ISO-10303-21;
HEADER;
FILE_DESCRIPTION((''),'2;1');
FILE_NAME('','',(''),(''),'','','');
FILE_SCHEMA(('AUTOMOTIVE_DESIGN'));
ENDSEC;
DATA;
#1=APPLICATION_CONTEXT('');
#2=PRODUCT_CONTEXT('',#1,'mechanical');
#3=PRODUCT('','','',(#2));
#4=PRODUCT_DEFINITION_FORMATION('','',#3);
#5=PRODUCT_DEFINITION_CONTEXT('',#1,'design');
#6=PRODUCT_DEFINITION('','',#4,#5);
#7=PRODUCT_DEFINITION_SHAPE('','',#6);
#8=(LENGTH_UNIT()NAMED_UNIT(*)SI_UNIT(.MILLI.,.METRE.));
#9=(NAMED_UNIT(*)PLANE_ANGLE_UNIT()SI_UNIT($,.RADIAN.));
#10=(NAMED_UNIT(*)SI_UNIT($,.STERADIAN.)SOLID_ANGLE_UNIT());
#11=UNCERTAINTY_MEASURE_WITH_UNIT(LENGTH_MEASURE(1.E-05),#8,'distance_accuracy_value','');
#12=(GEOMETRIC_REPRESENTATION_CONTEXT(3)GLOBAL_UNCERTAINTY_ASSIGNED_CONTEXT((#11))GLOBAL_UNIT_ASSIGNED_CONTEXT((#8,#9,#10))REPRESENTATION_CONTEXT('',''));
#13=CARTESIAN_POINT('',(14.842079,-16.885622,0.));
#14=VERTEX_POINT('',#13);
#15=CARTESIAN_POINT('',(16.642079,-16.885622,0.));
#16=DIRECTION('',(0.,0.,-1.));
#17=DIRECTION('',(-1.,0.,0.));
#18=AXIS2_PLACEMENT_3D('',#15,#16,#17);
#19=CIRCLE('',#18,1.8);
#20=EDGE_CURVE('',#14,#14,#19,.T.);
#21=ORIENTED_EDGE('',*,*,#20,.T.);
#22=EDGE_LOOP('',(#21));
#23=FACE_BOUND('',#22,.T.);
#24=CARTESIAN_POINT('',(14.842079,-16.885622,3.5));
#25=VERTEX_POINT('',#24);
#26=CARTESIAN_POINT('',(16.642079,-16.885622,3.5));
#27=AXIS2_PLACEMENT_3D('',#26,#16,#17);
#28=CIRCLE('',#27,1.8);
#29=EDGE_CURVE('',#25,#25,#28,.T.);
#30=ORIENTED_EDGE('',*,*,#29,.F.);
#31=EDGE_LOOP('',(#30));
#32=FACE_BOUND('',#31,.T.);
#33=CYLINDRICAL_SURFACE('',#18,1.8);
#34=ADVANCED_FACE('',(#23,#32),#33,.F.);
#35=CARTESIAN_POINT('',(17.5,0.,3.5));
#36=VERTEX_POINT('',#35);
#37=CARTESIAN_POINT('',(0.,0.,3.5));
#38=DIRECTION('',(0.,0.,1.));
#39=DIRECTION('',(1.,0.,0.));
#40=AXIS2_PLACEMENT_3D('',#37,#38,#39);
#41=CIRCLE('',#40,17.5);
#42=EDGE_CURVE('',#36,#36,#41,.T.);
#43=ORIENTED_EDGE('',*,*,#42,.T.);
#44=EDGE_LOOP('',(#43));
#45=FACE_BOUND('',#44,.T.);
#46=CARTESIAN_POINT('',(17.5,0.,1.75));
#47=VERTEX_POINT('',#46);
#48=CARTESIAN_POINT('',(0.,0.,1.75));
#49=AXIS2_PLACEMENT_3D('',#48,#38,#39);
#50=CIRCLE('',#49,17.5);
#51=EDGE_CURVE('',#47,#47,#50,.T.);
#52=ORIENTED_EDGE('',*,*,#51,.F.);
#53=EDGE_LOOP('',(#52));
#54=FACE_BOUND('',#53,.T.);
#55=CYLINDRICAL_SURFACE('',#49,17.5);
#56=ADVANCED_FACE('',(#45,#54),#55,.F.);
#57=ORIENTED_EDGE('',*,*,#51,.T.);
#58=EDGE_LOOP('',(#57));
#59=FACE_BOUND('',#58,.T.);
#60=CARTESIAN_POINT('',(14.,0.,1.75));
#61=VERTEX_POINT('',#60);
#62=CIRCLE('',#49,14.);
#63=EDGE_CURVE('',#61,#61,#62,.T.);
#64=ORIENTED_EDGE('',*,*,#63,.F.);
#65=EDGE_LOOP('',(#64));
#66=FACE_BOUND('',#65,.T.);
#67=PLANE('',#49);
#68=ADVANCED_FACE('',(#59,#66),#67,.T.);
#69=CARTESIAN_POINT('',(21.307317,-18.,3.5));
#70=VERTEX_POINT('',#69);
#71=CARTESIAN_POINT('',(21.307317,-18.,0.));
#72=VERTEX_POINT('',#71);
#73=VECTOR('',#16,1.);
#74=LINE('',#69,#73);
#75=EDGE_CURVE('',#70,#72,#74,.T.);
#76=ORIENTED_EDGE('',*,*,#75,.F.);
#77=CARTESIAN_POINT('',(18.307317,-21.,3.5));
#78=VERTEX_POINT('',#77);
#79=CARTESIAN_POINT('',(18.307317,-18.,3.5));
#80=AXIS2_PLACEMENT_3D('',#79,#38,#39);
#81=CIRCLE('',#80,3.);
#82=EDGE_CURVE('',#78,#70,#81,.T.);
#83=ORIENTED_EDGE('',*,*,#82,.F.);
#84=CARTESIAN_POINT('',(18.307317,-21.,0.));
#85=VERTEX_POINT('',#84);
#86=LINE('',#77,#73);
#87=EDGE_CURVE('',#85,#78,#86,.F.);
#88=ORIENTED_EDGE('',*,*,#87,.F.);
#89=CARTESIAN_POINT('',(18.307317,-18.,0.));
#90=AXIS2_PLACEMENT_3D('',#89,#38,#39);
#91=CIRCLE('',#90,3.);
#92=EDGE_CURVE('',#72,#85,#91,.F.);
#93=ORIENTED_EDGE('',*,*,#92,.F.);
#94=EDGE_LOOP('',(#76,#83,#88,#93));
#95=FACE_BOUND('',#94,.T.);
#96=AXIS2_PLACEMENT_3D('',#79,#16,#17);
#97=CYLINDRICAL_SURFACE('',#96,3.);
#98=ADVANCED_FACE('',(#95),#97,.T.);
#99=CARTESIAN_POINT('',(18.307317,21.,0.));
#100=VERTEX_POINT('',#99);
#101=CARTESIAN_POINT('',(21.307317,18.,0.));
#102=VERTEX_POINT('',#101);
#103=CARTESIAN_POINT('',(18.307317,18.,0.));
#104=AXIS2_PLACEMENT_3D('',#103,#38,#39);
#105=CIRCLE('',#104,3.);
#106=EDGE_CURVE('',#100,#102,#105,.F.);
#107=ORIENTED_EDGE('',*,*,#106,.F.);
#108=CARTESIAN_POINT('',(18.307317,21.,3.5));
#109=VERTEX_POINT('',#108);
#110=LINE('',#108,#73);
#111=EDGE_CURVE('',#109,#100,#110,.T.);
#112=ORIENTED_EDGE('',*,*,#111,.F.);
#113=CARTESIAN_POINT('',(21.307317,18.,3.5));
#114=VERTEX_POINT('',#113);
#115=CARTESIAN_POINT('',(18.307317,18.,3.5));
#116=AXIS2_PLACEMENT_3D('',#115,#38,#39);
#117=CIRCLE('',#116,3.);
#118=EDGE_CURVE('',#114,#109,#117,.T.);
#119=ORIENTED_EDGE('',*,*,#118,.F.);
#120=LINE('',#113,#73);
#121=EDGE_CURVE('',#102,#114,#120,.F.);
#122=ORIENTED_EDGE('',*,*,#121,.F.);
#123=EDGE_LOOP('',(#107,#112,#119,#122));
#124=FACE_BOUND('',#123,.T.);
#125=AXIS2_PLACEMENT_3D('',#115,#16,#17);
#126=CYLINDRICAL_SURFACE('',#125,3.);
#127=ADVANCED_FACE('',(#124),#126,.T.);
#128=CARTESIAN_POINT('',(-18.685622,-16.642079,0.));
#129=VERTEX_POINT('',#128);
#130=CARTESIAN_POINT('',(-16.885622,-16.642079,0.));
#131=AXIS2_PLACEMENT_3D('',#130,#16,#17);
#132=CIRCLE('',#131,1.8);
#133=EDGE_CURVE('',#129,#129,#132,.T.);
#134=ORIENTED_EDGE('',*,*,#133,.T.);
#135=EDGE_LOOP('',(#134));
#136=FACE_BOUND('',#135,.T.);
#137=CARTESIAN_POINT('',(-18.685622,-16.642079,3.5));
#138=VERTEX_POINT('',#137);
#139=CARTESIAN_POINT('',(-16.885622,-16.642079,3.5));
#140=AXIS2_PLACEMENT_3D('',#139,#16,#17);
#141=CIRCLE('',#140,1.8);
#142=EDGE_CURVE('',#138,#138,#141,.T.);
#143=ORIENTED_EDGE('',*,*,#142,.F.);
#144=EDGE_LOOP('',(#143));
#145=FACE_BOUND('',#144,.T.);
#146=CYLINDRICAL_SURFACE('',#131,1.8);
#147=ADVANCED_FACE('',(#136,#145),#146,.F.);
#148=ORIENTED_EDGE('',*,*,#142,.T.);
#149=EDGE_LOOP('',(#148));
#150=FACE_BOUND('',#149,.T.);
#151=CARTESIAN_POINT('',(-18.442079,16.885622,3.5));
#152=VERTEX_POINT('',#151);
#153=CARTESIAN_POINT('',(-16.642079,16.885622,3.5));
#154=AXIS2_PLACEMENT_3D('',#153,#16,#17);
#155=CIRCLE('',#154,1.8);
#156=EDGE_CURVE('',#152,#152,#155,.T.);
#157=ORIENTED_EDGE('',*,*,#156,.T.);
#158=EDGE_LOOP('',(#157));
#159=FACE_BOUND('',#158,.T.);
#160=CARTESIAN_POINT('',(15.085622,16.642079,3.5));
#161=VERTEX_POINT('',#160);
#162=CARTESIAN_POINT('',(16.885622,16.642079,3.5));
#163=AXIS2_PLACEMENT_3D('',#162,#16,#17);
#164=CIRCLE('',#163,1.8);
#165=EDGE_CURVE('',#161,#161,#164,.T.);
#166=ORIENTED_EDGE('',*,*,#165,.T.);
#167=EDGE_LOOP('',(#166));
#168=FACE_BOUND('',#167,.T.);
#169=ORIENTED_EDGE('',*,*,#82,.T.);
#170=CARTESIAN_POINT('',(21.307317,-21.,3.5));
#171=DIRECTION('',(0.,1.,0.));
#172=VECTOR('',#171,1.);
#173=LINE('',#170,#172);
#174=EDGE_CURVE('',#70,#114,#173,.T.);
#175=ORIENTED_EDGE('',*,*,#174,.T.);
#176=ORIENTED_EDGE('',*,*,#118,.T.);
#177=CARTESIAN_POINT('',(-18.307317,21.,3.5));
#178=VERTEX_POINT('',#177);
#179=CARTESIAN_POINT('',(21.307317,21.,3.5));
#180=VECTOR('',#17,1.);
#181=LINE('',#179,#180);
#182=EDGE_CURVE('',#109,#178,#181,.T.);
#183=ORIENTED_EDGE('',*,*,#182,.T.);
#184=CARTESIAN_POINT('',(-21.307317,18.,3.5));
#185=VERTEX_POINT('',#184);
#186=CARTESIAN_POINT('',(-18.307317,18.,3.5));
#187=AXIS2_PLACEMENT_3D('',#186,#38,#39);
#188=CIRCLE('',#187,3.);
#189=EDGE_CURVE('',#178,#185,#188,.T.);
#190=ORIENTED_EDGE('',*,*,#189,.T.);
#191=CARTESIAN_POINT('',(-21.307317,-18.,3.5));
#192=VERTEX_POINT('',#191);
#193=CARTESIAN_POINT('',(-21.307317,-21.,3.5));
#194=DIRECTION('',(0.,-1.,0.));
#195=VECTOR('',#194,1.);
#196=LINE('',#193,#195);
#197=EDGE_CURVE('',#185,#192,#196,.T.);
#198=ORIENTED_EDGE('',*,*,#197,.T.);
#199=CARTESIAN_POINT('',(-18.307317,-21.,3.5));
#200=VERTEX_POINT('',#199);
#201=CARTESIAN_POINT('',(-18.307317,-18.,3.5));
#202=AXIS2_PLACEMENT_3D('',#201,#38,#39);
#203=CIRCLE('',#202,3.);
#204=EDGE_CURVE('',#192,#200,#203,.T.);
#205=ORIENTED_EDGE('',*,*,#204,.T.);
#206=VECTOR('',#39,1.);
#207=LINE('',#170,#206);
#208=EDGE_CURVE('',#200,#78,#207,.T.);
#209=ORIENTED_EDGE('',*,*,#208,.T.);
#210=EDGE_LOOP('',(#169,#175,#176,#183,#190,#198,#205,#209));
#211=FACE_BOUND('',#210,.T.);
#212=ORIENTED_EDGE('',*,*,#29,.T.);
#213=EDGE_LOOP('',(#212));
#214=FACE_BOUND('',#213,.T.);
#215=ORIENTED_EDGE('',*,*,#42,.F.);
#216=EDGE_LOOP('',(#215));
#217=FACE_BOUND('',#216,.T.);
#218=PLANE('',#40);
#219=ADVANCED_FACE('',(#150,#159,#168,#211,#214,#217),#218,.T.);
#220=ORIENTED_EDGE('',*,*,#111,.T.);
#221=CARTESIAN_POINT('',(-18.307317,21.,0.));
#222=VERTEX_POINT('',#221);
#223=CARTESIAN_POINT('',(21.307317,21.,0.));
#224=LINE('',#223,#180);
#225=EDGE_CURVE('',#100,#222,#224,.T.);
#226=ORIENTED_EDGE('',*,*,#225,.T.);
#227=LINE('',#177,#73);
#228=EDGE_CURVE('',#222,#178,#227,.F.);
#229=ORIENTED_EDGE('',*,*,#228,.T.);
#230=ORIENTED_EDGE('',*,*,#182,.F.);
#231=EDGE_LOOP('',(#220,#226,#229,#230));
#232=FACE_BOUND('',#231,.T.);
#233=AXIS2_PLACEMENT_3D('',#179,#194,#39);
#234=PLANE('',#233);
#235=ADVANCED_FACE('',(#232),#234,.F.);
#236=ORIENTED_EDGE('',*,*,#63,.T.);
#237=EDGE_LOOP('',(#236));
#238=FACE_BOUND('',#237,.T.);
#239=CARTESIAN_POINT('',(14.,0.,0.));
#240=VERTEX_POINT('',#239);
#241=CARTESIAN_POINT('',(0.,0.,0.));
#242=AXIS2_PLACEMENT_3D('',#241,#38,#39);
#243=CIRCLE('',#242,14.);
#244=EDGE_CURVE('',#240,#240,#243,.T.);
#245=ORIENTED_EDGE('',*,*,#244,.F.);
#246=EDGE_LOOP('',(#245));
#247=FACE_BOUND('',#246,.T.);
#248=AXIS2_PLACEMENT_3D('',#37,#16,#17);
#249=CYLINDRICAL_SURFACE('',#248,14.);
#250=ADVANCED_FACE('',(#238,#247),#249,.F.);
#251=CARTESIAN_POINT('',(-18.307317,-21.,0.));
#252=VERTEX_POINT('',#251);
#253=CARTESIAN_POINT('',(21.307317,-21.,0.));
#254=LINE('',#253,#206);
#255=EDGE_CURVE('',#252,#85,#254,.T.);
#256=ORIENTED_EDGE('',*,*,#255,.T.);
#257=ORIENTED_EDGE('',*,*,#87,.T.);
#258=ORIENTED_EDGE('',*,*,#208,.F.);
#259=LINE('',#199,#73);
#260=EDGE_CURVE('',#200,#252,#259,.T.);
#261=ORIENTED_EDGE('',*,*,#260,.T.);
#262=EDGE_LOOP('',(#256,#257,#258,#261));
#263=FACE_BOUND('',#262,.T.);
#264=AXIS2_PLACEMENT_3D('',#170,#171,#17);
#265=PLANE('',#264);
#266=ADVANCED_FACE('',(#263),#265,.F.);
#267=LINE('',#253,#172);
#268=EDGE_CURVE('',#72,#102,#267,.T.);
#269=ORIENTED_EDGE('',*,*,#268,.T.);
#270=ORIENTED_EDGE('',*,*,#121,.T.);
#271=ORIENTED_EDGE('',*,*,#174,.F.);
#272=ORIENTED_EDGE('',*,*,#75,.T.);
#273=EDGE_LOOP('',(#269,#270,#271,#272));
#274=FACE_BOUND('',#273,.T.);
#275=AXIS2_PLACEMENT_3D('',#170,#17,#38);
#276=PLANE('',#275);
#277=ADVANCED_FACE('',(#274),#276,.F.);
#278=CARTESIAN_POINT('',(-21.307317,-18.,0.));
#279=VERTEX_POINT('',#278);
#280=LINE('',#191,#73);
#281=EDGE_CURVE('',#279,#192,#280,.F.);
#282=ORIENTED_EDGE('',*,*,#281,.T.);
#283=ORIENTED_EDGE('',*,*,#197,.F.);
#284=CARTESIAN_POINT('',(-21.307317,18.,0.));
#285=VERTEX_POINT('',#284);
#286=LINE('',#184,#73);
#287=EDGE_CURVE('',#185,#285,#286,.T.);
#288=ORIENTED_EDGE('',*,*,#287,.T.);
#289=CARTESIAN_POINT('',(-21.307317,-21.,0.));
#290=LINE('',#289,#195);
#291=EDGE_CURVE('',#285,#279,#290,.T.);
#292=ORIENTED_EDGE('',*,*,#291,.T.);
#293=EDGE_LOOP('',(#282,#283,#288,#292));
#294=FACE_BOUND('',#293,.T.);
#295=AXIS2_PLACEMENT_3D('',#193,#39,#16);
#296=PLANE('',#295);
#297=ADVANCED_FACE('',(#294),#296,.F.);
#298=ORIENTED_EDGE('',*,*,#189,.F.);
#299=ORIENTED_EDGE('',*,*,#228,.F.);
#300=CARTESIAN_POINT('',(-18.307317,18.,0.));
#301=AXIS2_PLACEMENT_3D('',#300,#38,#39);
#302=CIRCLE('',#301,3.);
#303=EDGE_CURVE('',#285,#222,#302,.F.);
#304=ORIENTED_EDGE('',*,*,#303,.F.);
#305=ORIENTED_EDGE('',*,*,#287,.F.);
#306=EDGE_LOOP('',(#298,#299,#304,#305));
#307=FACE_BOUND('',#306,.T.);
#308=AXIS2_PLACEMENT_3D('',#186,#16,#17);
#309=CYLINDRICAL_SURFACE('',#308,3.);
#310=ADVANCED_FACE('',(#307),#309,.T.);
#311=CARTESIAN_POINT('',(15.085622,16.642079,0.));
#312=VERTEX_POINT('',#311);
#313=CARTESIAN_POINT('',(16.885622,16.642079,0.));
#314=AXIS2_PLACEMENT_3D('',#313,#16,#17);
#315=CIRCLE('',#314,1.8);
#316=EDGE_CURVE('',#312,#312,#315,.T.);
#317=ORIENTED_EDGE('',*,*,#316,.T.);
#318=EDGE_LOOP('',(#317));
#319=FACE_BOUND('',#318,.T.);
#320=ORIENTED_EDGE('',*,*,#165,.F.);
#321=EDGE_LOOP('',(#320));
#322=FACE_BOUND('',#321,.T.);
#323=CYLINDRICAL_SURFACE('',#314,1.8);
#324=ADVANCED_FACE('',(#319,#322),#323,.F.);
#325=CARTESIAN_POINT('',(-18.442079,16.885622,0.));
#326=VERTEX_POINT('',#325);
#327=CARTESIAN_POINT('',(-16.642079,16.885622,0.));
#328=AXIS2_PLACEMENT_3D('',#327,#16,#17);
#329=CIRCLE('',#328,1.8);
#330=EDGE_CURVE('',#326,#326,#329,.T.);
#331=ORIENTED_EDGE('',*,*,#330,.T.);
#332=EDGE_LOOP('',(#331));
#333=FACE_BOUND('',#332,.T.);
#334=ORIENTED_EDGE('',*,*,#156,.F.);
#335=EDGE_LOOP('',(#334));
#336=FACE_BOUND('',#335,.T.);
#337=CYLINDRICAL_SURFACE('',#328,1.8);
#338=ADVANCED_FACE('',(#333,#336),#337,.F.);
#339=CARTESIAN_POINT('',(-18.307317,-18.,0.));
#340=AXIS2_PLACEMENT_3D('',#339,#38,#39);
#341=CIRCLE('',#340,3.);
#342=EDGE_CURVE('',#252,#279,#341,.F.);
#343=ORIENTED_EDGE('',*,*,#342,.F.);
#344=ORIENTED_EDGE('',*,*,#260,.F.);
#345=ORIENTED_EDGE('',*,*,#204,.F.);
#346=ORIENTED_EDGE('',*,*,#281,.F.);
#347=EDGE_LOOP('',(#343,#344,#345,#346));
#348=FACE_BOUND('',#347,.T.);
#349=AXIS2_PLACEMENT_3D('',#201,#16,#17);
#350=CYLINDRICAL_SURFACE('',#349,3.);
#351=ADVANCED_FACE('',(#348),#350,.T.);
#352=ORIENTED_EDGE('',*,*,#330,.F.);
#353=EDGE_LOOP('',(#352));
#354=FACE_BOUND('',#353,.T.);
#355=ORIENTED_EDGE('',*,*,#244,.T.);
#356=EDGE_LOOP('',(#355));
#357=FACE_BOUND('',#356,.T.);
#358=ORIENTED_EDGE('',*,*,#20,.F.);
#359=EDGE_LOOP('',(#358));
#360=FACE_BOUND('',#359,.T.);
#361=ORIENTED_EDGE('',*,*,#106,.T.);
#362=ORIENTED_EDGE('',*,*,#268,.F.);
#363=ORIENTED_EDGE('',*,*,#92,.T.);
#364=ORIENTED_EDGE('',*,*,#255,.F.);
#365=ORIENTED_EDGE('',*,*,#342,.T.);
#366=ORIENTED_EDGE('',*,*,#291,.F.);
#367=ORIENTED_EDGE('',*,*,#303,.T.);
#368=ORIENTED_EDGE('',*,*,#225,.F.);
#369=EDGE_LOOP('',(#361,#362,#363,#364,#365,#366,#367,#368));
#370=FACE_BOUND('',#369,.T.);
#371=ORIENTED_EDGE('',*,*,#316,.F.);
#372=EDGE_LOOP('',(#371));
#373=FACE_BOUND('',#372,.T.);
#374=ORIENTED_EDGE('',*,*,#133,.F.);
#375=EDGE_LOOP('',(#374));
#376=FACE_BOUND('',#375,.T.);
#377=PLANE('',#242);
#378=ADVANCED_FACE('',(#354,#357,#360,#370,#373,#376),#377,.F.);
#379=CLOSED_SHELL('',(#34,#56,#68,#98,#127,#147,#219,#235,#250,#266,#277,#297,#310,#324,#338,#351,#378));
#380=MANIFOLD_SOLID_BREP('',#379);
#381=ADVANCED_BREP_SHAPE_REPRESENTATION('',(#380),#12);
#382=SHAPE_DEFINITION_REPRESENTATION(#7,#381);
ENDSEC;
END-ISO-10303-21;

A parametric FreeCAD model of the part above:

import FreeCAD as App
import Part
import Sketcher
Q = App.Units.Quantity


def edges_at(feature, points):
    """Names of the edges that pass closest to the given points."""
    edges = feature.Shape.Edges
    near = lambda p: min(range(len(edges)), key=lambda i: edges[i].distToShape(Part.Vertex(*p))[0])
    return sorted({f"Edge{near(p) + 1}" for p in points})


def add_polygon(sketch, points):
    """Adds a closed chain of lines whose ends are joined by coincident constraints."""
    first, n = sketch.GeometryCount, len(points)
    for a, b in zip(points, points[1:] + points[:1]):
        sketch.addGeometry(Part.LineSegment(App.Vector(*a, 0), App.Vector(*b, 0)), False)
    for i in range(n):
        sketch.addConstraint(Sketcher.Constraint("Coincident", first + i, 2, first + (i + 1) % n, 1))

doc = App.newDocument("Part")
params = doc.addObject("Spreadsheet::Sheet", "Params")
for row, (alias, value) in enumerate([
    ("sketch1_diameter", "28 mm"),
    ("sketch1_height", "42 mm"),
    ("pad1_length", "3.5 mm"),
    ("sketch2_diameter", "35 mm"),
    ("pocket1_length", "1.75 mm"),
    ("sketch3_diameter", "3.6 mm"),
    ("hole_diameter", "3.6 mm"),
    ("fillet_radius", "3 mm"),
], start=1):
    params.set(f"A{row}", alias)
    params.set(f"B{row}", "=" + value)
    params.setAlias(f"B{row}", alias)

body = doc.addObject("PartDesign::Body", "Body")

# Sketch on XY plane
sketch1 = body.newObject("Sketcher::SketchObject", "Sketch")
sketch1.AttachmentSupport = (doc.getObject("XY_Plane"), [""])
sketch1.MapMode = "FlatFace"
add_polygon(sketch1, [(-21.307317, 21), (-21.307317, -21), (21.307317, -21), (21.307317, 21)])  # lines 0-3
sketch1.addGeometry(Part.Circle(App.Vector(0, 0, 0), App.Vector(0, 0, 1), 14), False)  # 4
sketch1.addConstraint(Sketcher.Constraint("Vertical", 0))
sketch1.addConstraint(Sketcher.Constraint("Horizontal", 1))
sketch1.addConstraint(Sketcher.Constraint("Vertical", 2))
sketch1.addConstraint(Sketcher.Constraint("Horizontal", 3))
sketch1.addConstraint(Sketcher.Constraint("Coincident", 4, 3, -1, 1))
sketch1.addConstraint(Sketcher.Constraint("Symmetric", 0, 2, 2, 2, -1, 1))
sketch1.addConstraint(Sketcher.Constraint("Diameter", 4, Q("28 mm")))
sketch1.addConstraint(Sketcher.Constraint("DistanceY", 0, 2, 0, 1, Q("42 mm")))
sketch1.addConstraint(Sketcher.Constraint("DistanceX", 1, 1, 1, 2, Q("42.614634 mm")))
sketch1.setExpression("Constraints[10]", "Params.sketch1_diameter")
sketch1.setExpression("Constraints[11]", "Params.sketch1_height")
pad1 = body.newObject("PartDesign::Pad", "Pad")
pad1.Profile = sketch1
pad1.setExpression("Length", "Params.pad1_length")

# Sketch on XY plane
sketch2 = body.newObject("Sketcher::SketchObject", "Sketch001")
sketch2.AttachmentSupport = (doc.getObject("XY_Plane"), [""])
sketch2.MapMode = "FlatFace"
sketch2.AttachmentOffset = App.Placement(App.Vector(0, 0, 3.5), App.Rotation())
sketch2.addGeometry(Part.Circle(App.Vector(0, 0, 0), App.Vector(0, 0, 1), 17.5), False)
sketch2.addConstraint(Sketcher.Constraint("Coincident", 0, 3, -1, 1))
sketch2.addConstraint(Sketcher.Constraint("Diameter", 0, Q("35 mm")))
sketch2.setExpression("Constraints[1]", "Params.sketch2_diameter")
pocket1 = body.newObject("PartDesign::Pocket", "Pocket")
pocket1.Profile = sketch2
pocket1.setExpression("Length", "Params.pocket1_length")

# Sketch on XY plane
sketch3 = body.newObject("Sketcher::SketchObject", "Sketch002")
sketch3.AttachmentSupport = (doc.getObject("XY_Plane"), [""])
sketch3.MapMode = "FlatFace"
sketch3.addGeometry(Part.Circle(App.Vector(16.642079, -16.885622, 0), App.Vector(0, 0, 1), 1.8), False)
sketch3.addGeometry(Part.Circle(App.Vector(16.885622, 16.642079, 0), App.Vector(0, 0, 1), 1.8), False)
sketch3.addGeometry(Part.Circle(App.Vector(-16.642079, 16.885622, 0), App.Vector(0, 0, 1), 1.8), False)
sketch3.addGeometry(Part.Circle(App.Vector(-16.885622, -16.642079, 0), App.Vector(0, 0, 1), 1.8), False)
sketch3.addConstraint(Sketcher.Constraint("Equal", 0, 1))
sketch3.addConstraint(Sketcher.Constraint("Equal", 1, 2))
sketch3.addConstraint(Sketcher.Constraint("Equal", 2, 3))
sketch3.addConstraint(Sketcher.Constraint("Symmetric", 0, 3, 2, 3, -1, 1))
sketch3.addConstraint(Sketcher.Constraint("Symmetric", 1, 3, 3, 3, -1, 1))
sketch3.addConstraint(Sketcher.Constraint("Diameter", 0, Q("3.6 mm")))
sketch3.addConstraint(Sketcher.Constraint("DistanceY", 0, 3, 1, 3, Q("33.527701 mm")))
sketch3.addConstraint(Sketcher.Constraint("DistanceX", 2, 3, 1, 3, Q("33.527701 mm")))
sketch3.addConstraint(Sketcher.Constraint("DistanceX", -1, 1, 0, 3, Q("16.642079 mm")))
sketch3.addConstraint(Sketcher.Constraint("DistanceY", 0, 3, -1, 1, Q("16.885622 mm")))
sketch3.setExpression("Constraints[5]", "Params.sketch3_diameter")
doc.recompute()
hole = body.newObject("PartDesign::Hole", "Hole")
hole.Profile = sketch3
hole.ThreadType = "None"
hole.setExpression("Diameter", "Params.hole_diameter")
hole.DepthType = "ThroughAll"
hole.Reversed = True
doc.recompute()

fillet = body.newObject("PartDesign::Fillet", "Fillet")
fillet.Base = (hole, edges_at(hole, [
    (-21.307, 21, 1.75),
    (21.307, 21, 1.75),
    (21.307, -21, 1.75),
    (-21.307, -21, 1.75),
]))
fillet.setExpression("Radius", "Params.fillet_radius")

doc.recompute()
